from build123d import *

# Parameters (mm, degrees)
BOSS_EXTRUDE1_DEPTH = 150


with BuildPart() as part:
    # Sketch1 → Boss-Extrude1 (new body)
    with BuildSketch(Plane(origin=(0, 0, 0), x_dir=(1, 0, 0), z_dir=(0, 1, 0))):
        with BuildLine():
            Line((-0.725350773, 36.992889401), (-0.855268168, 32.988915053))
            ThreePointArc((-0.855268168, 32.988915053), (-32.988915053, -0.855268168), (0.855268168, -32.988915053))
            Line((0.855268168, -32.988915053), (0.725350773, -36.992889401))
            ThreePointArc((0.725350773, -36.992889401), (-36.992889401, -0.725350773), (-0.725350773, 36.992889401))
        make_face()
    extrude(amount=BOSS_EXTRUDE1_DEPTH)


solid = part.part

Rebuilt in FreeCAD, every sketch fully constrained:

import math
import FreeCAD as App
import Part
import Sketcher

V = App.Vector
Q = App.Units.Quantity

doc = App.newDocument("Part")
body = doc.addObject("PartDesign::Body", "Body")

# Sketch on XZ plane
sketch1 = doc.addObject("Sketcher::SketchObject", "Sketch")
body.addObject(sketch1)
sketch1.AttachmentSupport = (doc.XZ_Plane, [""])
sketch1.MapMode = "FlatFace"
sketch1.addGeometry(Part.LineSegment(V(-0.855268, -32.988915, 0), V(-0.725351, -36.992889, 0)), False)
sketch1.addGeometry(Part.ArcOfCircle(Part.Circle(V(0, 0, 0), V(0, 0, 1), 37), math.radians(88.876697), math.radians(268.876697)), False)
sketch1.addGeometry(Part.LineSegment(V(0.725351, 36.992889, 0), V(0.855268, 32.988915, 0)), False)
sketch1.addGeometry(Part.ArcOfCircle(Part.Circle(V(0, 0, 0), V(0, 0, 1), 33), math.radians(88.514887), math.radians(268.514887)), False)
sketch1.addConstraint(Sketcher.Constraint("Coincident", 0, 2, 1, 2))
sketch1.addConstraint(Sketcher.Constraint("Coincident", 1, 1, 2, 1))
sketch1.addConstraint(Sketcher.Constraint("Coincident", 2, 2, 3, 1))
sketch1.addConstraint(Sketcher.Constraint("Coincident", 3, 2, 0, 1))
sketch1.addConstraint(Sketcher.Constraint("Coincident", 1, 3, -1, 1))
sketch1.addConstraint(Sketcher.Constraint("Coincident", 3, 3, -1, 1))
sketch1.addConstraint(Sketcher.Constraint("Parallel", 0, 2))
sketch1.addConstraint(Sketcher.Constraint("Equal", 0, 2))
sketch1.addConstraint(Sketcher.Constraint("Radius", 1, Q("37 mm")))
sketch1.addConstraint(Sketcher.Constraint("Radius", 3, Q("33 mm")))
sketch1.addConstraint(Sketcher.Constraint("DistanceX", 0, 2, 1, 1, Q("1.450702 mm")))
sketch1.addConstraint(Sketcher.Constraint("Distance", 0, Q("4.006082 mm")))
pad1 = doc.addObject("PartDesign::Pad", "Pad")
body.addObject(pad1)
pad1.Profile = sketch1
pad1.Length = 150
pad1.Reversed = True

doc.recompute()
